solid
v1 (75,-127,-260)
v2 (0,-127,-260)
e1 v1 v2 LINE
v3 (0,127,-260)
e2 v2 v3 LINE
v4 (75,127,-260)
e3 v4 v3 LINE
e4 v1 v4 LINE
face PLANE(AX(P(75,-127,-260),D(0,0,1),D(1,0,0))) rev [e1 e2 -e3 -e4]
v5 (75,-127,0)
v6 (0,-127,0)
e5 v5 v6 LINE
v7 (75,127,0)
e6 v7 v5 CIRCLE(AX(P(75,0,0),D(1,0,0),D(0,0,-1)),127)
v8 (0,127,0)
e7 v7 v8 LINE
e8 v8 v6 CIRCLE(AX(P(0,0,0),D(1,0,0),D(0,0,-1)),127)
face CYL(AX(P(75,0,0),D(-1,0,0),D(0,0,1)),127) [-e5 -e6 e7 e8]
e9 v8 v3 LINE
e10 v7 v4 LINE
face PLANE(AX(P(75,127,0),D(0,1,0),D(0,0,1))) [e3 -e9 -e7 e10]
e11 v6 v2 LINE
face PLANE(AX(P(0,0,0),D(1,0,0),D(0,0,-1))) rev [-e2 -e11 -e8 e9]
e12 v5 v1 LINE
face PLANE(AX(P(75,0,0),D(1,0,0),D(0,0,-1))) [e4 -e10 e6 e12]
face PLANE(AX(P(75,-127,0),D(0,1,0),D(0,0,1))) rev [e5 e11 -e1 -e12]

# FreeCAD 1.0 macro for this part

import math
import FreeCAD as App
import Part
import Sketcher
from FreeCAD import Vector
Q = App.Units.Quantity

doc = App.newDocument("Part")
body = doc.addObject("PartDesign::Body", "Body")

sketch1 = body.newObject("Sketcher::SketchObject", "Sketch")
sketch1.AttachmentSupport = (doc.getObject("YZ_Plane"), [""])
sketch1.MapMode = "FlatFace"
sketch1.addGeometry([
    Part.LineSegment(Vector(-127, 0, 0), Vector(-127, -260, 0)),
    Part.LineSegment(Vector(-127, -260, 0), Vector(127, -260, 0)),
    Part.LineSegment(Vector(127, -260, 0), Vector(127, 0, 0)),
    Part.ArcOfCircle(Part.Circle(Vector(0, 0, 0), Vector(0, 0, 1), 127), math.radians(0), math.radians(180)),
], False)
sketch1.addConstraint([
    Sketcher.Constraint("Coincident", 0, 2, 1, 1),
    Sketcher.Constraint("Coincident", 1, 2, 2, 1),
    Sketcher.Constraint("Tangent", 2, 2, 3, 1),
    Sketcher.Constraint("Tangent", 3, 2, 0, 1),
    Sketcher.Constraint("Vertical", 0),
    Sketcher.Constraint("Horizontal", 1),
    Sketcher.Constraint("Vertical", 2),
    Sketcher.Constraint("Coincident", 3, 3, -1, 1),
    Sketcher.Constraint("Radius", 3, Q("127 mm")),
    Sketcher.Constraint("DistanceY", 0, 2, 0, 1, Q("260 mm")),
])
pad1 = body.newObject("PartDesign::Pad", "Pad")
pad1.Profile = sketch1
pad1.Length = 75

doc.recompute()
